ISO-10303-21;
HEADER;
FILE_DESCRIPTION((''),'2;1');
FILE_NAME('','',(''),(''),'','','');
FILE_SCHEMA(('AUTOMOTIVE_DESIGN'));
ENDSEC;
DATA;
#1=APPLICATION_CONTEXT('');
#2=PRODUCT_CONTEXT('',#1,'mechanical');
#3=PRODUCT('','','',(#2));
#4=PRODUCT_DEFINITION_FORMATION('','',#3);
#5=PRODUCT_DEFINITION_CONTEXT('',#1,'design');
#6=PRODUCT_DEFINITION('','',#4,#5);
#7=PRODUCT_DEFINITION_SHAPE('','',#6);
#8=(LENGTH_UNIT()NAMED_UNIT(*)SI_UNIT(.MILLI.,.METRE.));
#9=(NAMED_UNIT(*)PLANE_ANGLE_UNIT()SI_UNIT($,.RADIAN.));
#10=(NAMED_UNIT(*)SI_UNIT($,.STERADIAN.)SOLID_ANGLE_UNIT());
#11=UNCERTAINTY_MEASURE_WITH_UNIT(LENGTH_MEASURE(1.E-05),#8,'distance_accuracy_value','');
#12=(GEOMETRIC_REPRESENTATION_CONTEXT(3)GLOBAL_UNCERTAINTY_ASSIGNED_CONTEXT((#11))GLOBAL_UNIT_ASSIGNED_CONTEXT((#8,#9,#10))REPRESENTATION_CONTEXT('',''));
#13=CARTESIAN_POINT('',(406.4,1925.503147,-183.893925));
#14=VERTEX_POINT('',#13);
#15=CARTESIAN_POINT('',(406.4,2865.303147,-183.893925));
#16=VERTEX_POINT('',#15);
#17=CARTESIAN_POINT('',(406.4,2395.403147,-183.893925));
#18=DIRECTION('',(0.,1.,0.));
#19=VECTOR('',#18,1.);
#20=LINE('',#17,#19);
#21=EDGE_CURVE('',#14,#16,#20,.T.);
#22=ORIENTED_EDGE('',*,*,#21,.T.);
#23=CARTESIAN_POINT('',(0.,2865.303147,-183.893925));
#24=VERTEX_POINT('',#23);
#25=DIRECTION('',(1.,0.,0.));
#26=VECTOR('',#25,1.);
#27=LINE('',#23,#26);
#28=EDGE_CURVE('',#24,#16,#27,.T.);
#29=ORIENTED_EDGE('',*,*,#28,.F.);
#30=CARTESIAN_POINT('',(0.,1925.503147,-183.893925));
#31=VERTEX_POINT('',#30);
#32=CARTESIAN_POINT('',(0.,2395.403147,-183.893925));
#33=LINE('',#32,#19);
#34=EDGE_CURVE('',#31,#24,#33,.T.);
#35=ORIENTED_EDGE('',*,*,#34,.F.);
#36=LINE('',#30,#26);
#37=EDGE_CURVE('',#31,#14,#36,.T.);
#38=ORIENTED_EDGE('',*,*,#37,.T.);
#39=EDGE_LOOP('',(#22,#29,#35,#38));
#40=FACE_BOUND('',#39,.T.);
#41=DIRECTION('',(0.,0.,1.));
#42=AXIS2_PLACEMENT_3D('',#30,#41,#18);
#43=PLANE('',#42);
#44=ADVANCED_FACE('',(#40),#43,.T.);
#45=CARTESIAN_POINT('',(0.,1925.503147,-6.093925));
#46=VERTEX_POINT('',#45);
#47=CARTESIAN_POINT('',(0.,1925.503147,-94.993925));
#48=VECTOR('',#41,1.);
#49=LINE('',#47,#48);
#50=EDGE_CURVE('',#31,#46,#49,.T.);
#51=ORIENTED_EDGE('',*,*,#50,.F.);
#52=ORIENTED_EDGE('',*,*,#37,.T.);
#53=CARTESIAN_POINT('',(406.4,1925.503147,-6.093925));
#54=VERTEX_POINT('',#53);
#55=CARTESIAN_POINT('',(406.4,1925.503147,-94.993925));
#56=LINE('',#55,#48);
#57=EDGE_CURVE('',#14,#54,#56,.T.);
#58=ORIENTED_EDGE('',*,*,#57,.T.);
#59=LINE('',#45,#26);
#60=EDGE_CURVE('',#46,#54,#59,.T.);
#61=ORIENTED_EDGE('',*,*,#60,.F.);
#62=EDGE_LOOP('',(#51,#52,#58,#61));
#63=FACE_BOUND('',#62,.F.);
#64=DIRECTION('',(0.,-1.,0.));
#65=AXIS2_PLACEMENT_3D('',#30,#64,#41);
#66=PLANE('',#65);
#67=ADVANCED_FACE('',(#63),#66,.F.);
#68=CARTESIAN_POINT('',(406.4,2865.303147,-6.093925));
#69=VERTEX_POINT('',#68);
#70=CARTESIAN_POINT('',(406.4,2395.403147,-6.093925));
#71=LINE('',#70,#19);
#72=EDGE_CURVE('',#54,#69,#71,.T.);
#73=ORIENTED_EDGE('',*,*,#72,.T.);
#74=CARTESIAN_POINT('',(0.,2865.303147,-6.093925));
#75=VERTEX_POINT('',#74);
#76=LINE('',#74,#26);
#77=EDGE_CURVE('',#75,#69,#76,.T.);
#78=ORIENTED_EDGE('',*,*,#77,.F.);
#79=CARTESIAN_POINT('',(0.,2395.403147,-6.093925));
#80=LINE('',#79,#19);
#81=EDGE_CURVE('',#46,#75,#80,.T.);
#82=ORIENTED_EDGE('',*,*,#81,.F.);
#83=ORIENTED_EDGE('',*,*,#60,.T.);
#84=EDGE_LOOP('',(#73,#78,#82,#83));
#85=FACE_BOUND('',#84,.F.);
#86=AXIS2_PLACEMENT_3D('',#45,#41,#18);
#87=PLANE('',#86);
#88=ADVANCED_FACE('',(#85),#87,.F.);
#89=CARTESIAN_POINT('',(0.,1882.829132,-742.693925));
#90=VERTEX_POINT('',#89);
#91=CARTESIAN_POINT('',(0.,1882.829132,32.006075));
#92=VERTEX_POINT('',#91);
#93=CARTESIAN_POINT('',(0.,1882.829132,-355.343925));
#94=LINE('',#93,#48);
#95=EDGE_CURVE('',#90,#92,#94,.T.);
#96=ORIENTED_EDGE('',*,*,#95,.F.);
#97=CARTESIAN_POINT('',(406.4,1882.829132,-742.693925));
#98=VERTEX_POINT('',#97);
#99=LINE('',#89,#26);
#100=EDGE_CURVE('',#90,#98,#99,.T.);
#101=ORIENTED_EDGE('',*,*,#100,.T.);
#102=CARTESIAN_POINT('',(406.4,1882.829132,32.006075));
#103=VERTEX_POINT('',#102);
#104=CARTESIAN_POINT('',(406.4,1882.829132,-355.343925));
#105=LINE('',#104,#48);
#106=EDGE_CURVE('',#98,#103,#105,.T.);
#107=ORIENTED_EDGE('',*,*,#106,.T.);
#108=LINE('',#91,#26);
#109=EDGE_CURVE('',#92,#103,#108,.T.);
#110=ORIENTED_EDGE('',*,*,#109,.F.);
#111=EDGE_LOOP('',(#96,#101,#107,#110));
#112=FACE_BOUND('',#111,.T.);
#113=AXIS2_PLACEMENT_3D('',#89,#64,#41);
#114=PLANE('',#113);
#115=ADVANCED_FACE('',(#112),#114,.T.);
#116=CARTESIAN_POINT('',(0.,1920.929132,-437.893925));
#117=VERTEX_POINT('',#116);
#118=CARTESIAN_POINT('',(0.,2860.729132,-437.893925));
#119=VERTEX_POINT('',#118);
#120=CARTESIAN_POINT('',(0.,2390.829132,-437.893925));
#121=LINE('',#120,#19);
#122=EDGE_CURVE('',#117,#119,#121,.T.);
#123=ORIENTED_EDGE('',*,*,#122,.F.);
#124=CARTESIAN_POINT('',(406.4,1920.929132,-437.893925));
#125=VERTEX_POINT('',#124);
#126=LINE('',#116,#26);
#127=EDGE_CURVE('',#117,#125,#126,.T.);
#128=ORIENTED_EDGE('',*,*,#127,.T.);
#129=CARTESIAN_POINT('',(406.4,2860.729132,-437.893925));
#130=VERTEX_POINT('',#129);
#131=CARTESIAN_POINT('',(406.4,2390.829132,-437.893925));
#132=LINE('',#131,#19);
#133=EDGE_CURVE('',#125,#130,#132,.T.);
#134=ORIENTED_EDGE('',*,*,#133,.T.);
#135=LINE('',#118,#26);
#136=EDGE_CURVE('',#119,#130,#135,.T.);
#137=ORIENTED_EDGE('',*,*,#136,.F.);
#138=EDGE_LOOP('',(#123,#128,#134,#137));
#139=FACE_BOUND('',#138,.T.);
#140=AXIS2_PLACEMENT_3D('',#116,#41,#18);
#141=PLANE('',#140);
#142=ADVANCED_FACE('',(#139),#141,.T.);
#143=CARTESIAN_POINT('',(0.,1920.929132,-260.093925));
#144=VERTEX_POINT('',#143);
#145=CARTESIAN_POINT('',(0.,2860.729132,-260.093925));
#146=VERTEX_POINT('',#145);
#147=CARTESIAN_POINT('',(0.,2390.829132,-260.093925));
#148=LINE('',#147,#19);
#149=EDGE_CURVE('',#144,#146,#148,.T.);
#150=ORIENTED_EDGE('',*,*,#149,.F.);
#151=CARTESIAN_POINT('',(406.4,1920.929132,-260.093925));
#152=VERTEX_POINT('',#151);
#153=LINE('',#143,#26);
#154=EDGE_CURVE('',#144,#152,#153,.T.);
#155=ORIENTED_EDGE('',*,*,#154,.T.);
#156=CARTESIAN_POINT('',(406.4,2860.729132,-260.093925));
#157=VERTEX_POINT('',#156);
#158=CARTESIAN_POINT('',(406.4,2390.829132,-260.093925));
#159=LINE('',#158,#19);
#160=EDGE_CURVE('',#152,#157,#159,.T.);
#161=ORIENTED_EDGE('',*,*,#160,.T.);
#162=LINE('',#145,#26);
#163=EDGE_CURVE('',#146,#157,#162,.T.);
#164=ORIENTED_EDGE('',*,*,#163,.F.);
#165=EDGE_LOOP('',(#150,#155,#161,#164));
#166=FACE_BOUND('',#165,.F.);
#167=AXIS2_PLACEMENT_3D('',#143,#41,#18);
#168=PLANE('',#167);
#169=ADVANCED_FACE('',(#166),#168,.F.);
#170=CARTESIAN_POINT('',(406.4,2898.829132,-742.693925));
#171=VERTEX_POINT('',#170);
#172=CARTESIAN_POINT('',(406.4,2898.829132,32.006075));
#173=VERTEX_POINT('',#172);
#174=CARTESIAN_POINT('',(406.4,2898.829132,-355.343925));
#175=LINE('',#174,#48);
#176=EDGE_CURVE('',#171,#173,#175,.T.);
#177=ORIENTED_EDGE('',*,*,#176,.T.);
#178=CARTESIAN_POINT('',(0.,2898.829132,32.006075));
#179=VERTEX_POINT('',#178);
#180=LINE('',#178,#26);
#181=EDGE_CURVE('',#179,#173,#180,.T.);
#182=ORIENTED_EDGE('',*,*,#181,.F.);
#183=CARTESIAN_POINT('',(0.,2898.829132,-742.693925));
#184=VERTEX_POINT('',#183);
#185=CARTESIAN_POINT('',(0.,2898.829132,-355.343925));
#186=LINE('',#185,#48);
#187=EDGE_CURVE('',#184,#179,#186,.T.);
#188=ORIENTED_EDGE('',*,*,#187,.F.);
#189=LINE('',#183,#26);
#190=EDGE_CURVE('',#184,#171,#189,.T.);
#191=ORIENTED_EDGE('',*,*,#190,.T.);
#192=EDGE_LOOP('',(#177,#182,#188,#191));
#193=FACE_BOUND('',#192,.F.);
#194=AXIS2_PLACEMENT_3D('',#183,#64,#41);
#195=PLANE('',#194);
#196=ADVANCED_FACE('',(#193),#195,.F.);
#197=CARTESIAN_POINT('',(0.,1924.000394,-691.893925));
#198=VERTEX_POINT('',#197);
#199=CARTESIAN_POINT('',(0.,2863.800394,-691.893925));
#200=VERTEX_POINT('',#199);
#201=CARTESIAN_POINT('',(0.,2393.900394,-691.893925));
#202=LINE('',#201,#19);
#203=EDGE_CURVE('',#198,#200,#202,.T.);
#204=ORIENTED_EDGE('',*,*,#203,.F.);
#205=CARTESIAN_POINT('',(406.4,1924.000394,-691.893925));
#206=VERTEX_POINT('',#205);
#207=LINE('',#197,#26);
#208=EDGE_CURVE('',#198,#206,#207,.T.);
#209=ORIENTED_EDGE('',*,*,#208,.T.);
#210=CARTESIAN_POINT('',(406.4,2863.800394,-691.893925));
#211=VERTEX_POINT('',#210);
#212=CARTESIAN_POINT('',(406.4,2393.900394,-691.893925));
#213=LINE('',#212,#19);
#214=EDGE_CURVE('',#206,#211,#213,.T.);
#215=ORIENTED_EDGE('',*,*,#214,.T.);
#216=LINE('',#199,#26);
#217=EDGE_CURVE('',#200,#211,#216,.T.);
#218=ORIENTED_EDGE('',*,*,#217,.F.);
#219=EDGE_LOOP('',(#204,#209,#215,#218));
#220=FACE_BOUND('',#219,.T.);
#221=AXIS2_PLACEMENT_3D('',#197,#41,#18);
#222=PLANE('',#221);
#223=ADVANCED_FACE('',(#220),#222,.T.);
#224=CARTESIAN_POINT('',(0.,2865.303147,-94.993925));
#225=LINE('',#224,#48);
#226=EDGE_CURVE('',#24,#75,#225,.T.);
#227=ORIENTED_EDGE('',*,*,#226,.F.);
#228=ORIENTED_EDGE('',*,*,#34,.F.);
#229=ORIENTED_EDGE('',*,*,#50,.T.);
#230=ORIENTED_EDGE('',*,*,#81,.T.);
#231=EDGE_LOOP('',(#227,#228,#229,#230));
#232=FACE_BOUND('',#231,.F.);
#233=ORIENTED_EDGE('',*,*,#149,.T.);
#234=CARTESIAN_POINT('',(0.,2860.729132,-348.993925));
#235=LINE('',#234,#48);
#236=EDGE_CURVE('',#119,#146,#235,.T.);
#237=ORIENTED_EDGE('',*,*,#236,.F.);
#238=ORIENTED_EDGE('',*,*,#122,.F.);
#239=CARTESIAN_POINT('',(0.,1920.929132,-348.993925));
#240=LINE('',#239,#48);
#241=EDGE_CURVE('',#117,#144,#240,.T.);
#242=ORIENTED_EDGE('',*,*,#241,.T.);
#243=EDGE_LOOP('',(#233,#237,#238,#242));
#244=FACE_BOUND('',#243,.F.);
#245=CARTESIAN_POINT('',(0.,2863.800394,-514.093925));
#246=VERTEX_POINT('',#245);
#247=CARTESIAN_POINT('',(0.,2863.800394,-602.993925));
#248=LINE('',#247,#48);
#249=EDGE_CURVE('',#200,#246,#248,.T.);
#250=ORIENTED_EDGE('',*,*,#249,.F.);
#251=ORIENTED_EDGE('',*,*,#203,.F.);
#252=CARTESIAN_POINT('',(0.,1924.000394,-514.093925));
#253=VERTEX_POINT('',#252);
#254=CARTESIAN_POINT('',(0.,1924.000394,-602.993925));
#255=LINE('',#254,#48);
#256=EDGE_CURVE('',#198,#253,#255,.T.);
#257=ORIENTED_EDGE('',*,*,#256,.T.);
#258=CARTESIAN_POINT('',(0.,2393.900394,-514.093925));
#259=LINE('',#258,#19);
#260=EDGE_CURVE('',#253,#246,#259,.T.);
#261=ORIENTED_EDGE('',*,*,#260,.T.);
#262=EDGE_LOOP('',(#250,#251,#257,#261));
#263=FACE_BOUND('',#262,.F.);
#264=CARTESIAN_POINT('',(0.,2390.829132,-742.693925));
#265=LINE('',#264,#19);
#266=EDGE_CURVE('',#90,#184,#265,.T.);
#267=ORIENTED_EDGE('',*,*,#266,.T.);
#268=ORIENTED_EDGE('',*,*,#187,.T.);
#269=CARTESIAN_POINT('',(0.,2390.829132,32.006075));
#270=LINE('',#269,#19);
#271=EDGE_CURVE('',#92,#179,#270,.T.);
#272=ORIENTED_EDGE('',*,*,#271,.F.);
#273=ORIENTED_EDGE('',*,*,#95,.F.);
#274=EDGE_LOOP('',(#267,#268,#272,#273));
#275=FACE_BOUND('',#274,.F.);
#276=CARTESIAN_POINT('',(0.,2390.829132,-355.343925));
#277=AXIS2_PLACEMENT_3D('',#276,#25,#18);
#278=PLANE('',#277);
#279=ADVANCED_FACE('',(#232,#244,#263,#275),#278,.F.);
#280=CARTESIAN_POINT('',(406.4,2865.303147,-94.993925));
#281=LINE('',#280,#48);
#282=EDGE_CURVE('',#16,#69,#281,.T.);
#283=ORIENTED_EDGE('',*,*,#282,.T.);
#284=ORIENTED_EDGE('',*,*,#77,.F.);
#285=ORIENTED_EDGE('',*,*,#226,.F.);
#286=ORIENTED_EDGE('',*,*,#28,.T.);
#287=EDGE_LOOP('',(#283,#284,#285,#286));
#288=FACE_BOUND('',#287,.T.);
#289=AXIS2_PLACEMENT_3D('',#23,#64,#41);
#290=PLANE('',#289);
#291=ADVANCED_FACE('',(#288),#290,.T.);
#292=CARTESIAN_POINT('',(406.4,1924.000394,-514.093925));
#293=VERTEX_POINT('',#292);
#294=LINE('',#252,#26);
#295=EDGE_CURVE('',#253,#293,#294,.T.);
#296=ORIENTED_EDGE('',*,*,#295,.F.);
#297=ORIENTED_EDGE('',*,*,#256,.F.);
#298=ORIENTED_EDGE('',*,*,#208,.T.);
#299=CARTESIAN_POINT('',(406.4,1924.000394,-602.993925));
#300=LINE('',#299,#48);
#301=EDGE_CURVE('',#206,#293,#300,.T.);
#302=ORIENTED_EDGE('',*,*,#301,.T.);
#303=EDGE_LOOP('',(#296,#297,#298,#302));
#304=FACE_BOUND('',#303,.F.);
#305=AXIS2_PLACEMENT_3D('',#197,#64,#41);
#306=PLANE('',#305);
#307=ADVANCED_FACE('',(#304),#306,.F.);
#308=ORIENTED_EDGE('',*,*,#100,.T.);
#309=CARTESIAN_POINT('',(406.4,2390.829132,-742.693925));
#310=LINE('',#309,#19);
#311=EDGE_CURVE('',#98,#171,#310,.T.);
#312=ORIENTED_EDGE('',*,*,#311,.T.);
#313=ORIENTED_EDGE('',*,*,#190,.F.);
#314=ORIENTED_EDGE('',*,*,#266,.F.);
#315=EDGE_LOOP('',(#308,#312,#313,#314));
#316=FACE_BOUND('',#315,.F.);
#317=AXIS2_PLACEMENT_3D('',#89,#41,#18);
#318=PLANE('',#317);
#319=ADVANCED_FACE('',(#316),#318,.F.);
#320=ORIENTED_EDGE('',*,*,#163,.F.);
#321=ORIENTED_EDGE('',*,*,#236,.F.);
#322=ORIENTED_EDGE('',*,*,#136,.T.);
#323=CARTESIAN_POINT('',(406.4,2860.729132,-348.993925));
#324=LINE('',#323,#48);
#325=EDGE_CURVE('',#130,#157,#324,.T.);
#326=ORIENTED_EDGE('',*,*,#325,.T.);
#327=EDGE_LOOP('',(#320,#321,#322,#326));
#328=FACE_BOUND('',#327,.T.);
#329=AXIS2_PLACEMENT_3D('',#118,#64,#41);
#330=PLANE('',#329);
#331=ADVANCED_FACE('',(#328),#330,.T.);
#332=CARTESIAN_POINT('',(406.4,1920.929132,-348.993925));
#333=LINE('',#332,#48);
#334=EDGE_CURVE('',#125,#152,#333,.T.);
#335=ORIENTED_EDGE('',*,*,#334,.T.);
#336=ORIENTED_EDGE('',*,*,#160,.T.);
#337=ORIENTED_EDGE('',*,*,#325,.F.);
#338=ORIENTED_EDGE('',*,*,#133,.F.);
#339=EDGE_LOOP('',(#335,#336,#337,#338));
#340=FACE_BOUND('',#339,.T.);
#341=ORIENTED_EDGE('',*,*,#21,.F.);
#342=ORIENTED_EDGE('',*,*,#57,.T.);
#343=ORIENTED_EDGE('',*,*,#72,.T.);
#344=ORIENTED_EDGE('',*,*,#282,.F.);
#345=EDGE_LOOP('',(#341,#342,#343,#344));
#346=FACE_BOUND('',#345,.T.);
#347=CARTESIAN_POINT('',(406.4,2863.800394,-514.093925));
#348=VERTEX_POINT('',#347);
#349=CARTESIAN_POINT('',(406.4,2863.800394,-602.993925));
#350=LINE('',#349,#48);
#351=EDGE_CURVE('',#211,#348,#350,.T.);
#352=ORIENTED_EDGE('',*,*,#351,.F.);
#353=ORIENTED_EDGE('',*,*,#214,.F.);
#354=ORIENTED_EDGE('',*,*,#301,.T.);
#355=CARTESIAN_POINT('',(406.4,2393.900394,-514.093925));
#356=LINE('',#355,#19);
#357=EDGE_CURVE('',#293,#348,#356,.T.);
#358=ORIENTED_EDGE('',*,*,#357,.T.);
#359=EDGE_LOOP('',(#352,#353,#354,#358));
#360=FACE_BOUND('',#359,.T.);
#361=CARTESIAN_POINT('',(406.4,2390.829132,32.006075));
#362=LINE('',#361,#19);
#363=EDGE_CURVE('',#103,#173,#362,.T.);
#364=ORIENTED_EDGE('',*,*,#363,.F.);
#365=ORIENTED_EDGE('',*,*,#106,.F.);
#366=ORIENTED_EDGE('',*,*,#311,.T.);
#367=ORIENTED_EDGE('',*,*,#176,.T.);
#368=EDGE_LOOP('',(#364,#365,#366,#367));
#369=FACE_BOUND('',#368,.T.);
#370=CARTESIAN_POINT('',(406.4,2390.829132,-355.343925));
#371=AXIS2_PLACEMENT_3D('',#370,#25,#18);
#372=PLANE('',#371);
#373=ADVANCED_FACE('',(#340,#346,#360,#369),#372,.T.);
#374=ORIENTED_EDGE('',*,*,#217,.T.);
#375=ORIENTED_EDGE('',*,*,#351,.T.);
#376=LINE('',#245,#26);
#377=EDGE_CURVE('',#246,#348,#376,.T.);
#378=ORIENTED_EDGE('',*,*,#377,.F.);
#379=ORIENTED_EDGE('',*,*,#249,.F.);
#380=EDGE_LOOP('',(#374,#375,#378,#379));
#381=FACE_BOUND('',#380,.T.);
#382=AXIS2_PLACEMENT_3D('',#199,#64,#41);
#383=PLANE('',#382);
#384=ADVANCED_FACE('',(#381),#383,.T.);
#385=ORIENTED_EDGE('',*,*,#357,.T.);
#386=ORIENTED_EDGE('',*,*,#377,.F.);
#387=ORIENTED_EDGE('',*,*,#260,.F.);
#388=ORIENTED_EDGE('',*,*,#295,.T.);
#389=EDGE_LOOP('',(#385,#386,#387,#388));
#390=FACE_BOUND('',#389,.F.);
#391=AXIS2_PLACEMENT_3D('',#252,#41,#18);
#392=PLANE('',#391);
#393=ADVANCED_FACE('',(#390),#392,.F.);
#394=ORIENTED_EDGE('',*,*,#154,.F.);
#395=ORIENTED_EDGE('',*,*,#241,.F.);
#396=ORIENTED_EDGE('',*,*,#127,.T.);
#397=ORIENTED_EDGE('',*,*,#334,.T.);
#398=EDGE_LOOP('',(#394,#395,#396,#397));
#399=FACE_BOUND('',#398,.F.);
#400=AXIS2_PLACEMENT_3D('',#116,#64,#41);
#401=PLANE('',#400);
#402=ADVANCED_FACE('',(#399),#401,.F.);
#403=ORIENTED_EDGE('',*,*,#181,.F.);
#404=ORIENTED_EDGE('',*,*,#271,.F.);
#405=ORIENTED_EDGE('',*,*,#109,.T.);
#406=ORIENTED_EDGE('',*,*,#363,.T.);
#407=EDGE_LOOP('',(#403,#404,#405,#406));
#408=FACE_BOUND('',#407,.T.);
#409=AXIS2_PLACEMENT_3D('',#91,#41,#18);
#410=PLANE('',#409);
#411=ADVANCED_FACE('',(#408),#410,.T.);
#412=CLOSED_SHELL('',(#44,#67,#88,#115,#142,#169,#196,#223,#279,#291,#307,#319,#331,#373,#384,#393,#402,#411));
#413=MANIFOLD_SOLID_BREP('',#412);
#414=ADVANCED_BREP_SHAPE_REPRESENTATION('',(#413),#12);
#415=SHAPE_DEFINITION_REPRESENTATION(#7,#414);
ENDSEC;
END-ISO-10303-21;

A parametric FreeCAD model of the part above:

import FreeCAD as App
import Part
import Sketcher

V = App.Vector
Q = App.Units.Quantity

doc = App.newDocument("Part")
params = doc.addObject("Spreadsheet::Sheet", "Params")
for row, (alias, value) in enumerate([
    ("sketch1_width", "40 in"),
    ("sketch1_width2", "37 in"),
    ("sketch1_height", "7 in"),
    ("sketch1_height2", "30.5 in"),
    ("pad1_length", "16 in"),
], start=1):
    params.set(f"A{row}", alias)
    params.set(f"B{row}", "=" + value)
    params.setAlias(f"B{row}", alias)

body = doc.addObject("PartDesign::Body", "Body")

sketch1 = doc.addObject("Sketcher::SketchObject", "Sketch")
body.addObject(sketch1)
sketch1.AttachmentSupport = (doc.YZ_Plane, [""])
sketch1.MapMode = "FlatFace"
sketch1.addGeometry(Part.LineSegment(V(1883, 32, 0), V(1883, -743, 0)), False)
sketch1.addGeometry(Part.LineSegment(V(1883, -743, 0), V(2899, -743, 0)), False)
sketch1.addGeometry(Part.LineSegment(V(2899, -743, 0), V(2899, 32, 0)), False)
sketch1.addGeometry(Part.LineSegment(V(2899, 32, 0), V(1883, 32, 0)), False)
sketch1.addGeometry(Part.LineSegment(V(2864, -692, 0), V(1924, -692, 0)), False)
sketch1.addGeometry(Part.LineSegment(V(1924, -692, 0), V(1924, -514, 0)), False)
sketch1.addGeometry(Part.LineSegment(V(1924, -514, 0), V(2864, -514, 0)), False)
sketch1.addGeometry(Part.LineSegment(V(2864, -514, 0), V(2864, -692, 0)), False)
sketch1.addGeometry(Part.LineSegment(V(2861, -438, 0), V(1921, -438, 0)), False)
sketch1.addGeometry(Part.LineSegment(V(1921, -438, 0), V(1921, -260, 0)), False)
sketch1.addGeometry(Part.LineSegment(V(1921, -260, 0), V(2861, -260, 0)), False)
sketch1.addGeometry(Part.LineSegment(V(2861, -260, 0), V(2861, -438, 0)), False)
sketch1.addGeometry(Part.LineSegment(V(2865, -184, 0), V(1926, -184, 0)), False)
sketch1.addGeometry(Part.LineSegment(V(1926, -184, 0), V(1926, -6, 0)), False)
sketch1.addGeometry(Part.LineSegment(V(1926, -6, 0), V(2865, -6, 0)), False)
sketch1.addGeometry(Part.LineSegment(V(2865, -6, 0), V(2865, -184, 0)), False)
sketch1.addConstraint(Sketcher.Constraint("Coincident", 0, 2, 1, 1))
sketch1.addConstraint(Sketcher.Constraint("Coincident", 1, 2, 2, 1))
sketch1.addConstraint(Sketcher.Constraint("Coincident", 2, 2, 3, 1))
sketch1.addConstraint(Sketcher.Constraint("Coincident", 3, 2, 0, 1))
sketch1.addConstraint(Sketcher.Constraint("Coincident", 4, 2, 5, 1))
sketch1.addConstraint(Sketcher.Constraint("Coincident", 5, 2, 6, 1))
sketch1.addConstraint(Sketcher.Constraint("Coincident", 6, 2, 7, 1))
sketch1.addConstraint(Sketcher.Constraint("Coincident", 7, 2, 4, 1))
sketch1.addConstraint(Sketcher.Constraint("Coincident", 8, 2, 9, 1))
sketch1.addConstraint(Sketcher.Constraint("Coincident", 9, 2, 10, 1))
sketch1.addConstraint(Sketcher.Constraint("Coincident", 10, 2, 11, 1))
sketch1.addConstraint(Sketcher.Constraint("Coincident", 11, 2, 8, 1))
sketch1.addConstraint(Sketcher.Constraint("Coincident", 12, 2, 13, 1))
sketch1.addConstraint(Sketcher.Constraint("Coincident", 13, 2, 14, 1))
sketch1.addConstraint(Sketcher.Constraint("Coincident", 14, 2, 15, 1))
sketch1.addConstraint(Sketcher.Constraint("Coincident", 15, 2, 12, 1))
sketch1.addConstraint(Sketcher.Constraint("Vertical", 0))
sketch1.addConstraint(Sketcher.Constraint("Horizontal", 1))
sketch1.addConstraint(Sketcher.Constraint("Vertical", 2))
sketch1.addConstraint(Sketcher.Constraint("Horizontal", 3))
sketch1.addConstraint(Sketcher.Constraint("Horizontal", 4))
sketch1.addConstraint(Sketcher.Constraint("Vertical", 5))
sketch1.addConstraint(Sketcher.Constraint("Horizontal", 6))
sketch1.addConstraint(Sketcher.Constraint("Vertical", 7))
sketch1.addConstraint(Sketcher.Constraint("Horizontal", 8))
sketch1.addConstraint(Sketcher.Constraint("Vertical", 9))
sketch1.addConstraint(Sketcher.Constraint("Horizontal", 10))
sketch1.addConstraint(Sketcher.Constraint("Vertical", 11))
sketch1.addConstraint(Sketcher.Constraint("Horizontal", 12))
sketch1.addConstraint(Sketcher.Constraint("Vertical", 13))
sketch1.addConstraint(Sketcher.Constraint("Horizontal", 14))
sketch1.addConstraint(Sketcher.Constraint("Vertical", 15))
sketch1.addConstraint(Sketcher.Constraint("Equal", 6, 8))
sketch1.addConstraint(Sketcher.Constraint("Equal", 10, 12))
sketch1.addConstraint(Sketcher.Constraint("Equal", 7, 9))
sketch1.addConstraint(Sketcher.Constraint("Equal", 11, 13))
sketch1.addConstraint(Sketcher.Constraint("DistanceX", 1, 1, 1, 2, Q("40 in")))
sketch1.addConstraint(Sketcher.Constraint("DistanceX", 4, 2, 4, 1, Q("37 in")))
sketch1.addConstraint(Sketcher.Constraint("DistanceY", 5, 1, 5, 2, Q("7 in")))
sketch1.addConstraint(Sketcher.Constraint("DistanceY", 0, 2, 0, 1, Q("30.5 in")))
sketch1.addConstraint(Sketcher.Constraint("DistanceY", 0, 2, 4, 2, Q("2 in")))
sketch1.addConstraint(Sketcher.Constraint("DistanceY", 5, 2, 8, 2, Q("3 in")))
sketch1.addConstraint(Sketcher.Constraint("DistanceY", 9, 2, 12, 2, Q("3 in")))
sketch1.addConstraint(Sketcher.Constraint("DistanceX", 0, 2, 8, 2, Q("1.5 in")))
sketch1.addConstraint(Sketcher.Constraint("DistanceX", -1, 1, 0, 2, Q("1882.829132 mm")))
sketch1.addConstraint(Sketcher.Constraint("DistanceX", 0, 2, 4, 2, Q("41.171262 mm")))
sketch1.addConstraint(Sketcher.Constraint("DistanceY", 0, 2, -1, 1, Q("742.693925 mm")))
sketch1.addConstraint(Sketcher.Constraint("DistanceX", -1, 1, 12, 2, Q("1925.503147 mm")))
sketch1.setExpression("Constraints[36]", "Params.sketch1_width")
sketch1.setExpression("Constraints[37]", "Params.sketch1_width2")
sketch1.setExpression("Constraints[38]", "Params.sketch1_height")
sketch1.setExpression("Constraints[39]", "Params.sketch1_height2")
pad1 = doc.addObject("PartDesign::Pad", "Pad")
body.addObject(pad1)
pad1.Profile = sketch1
pad1.setExpression("Length", "Params.pad1_length")

doc.recompute()
